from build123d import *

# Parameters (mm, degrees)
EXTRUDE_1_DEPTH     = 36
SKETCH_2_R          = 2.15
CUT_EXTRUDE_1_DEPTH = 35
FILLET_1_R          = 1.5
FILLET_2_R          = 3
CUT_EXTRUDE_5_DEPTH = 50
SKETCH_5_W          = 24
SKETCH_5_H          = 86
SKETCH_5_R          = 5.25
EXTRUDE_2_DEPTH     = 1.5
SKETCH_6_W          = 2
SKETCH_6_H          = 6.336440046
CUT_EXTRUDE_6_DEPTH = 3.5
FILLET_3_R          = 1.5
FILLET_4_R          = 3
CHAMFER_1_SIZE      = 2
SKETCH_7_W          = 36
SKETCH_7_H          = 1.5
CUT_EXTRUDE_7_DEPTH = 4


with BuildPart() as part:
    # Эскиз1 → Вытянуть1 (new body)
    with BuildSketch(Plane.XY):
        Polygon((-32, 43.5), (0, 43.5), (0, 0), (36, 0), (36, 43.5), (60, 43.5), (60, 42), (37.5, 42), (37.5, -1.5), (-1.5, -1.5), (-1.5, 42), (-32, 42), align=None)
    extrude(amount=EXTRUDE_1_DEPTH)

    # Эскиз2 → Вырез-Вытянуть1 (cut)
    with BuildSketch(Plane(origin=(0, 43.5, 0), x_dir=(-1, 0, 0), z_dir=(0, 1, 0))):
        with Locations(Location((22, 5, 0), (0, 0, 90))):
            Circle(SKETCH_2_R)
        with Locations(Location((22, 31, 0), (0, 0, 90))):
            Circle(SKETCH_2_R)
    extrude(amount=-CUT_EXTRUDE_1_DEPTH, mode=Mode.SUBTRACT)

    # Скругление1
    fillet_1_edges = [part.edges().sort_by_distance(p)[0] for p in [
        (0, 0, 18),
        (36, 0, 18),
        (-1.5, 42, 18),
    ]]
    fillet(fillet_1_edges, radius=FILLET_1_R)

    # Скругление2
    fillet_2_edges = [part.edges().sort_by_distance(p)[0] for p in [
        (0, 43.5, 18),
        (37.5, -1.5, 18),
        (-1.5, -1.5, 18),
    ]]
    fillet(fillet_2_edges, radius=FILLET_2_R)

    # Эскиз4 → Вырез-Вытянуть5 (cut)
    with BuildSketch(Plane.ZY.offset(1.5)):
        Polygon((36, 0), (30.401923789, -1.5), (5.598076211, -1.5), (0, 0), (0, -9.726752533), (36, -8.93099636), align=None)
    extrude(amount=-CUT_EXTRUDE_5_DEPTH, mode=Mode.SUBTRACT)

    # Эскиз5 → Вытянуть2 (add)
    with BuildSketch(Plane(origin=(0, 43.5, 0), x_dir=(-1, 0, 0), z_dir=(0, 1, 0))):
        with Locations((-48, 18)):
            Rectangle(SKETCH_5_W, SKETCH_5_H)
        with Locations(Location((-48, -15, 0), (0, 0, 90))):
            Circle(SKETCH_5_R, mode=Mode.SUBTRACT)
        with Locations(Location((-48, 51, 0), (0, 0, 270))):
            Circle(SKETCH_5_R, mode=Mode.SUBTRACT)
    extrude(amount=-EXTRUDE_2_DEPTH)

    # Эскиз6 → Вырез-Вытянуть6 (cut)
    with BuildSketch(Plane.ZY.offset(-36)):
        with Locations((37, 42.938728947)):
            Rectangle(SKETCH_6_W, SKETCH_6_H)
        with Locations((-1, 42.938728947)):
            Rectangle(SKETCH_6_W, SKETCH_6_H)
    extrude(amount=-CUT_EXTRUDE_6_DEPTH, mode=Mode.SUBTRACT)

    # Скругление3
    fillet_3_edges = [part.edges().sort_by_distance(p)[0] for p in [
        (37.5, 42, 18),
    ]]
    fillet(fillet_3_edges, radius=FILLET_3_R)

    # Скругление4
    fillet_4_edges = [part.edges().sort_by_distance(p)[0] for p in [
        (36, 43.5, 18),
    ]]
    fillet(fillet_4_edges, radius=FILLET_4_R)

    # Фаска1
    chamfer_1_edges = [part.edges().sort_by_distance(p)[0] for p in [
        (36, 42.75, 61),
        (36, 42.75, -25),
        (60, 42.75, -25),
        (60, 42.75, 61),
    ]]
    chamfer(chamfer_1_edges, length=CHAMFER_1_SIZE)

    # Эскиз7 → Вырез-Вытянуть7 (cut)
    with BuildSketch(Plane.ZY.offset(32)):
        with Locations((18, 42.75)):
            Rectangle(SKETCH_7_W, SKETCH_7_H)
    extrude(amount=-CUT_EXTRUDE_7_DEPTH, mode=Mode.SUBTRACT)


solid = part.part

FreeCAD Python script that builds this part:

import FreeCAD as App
import Part
import Sketcher
Q = App.Units.Quantity


def edges_at(feature, points):
    """Names of the edges that pass closest to the given points."""
    edges = feature.Shape.Edges
    near = lambda p: min(range(len(edges)), key=lambda i: edges[i].distToShape(Part.Vertex(*p))[0])
    return sorted({f"Edge{near(p) + 1}" for p in points})


def add_polygon(sketch, points):
    """Adds a closed chain of lines whose ends are joined by coincident constraints."""
    first, n = sketch.GeometryCount, len(points)
    for a, b in zip(points, points[1:] + points[:1]):
        sketch.addGeometry(Part.LineSegment(App.Vector(*a, 0), App.Vector(*b, 0)), False)
    for i in range(n):
        sketch.addConstraint(Sketcher.Constraint("Coincident", first + i, 2, first + (i + 1) % n, 1))

doc = App.newDocument("Part")
body = doc.addObject("PartDesign::Body", "Body")

# Sketch on XY plane
sketch1 = body.newObject("Sketcher::SketchObject", "Sketch")
sketch1.AttachmentSupport = (doc.getObject("XY_Plane"), [""])
sketch1.MapMode = "FlatFace"
add_polygon(sketch1, [(0, 43.5), (-32, 43.5), (-32, 42), (-1.5, 42), (-1.5, -1.5), (37.5, -1.5), (37.5, 42), (60, 42), (60, 43.5), (36, 43.5), (36, 0), (0, 0)])  # lines 0-11
sketch1.addConstraint(Sketcher.Constraint("Horizontal", 0))
sketch1.addConstraint(Sketcher.Constraint("Vertical", 1))
sketch1.addConstraint(Sketcher.Constraint("Horizontal", 2))
sketch1.addConstraint(Sketcher.Constraint("Vertical", 3))
sketch1.addConstraint(Sketcher.Constraint("Horizontal", 4))
sketch1.addConstraint(Sketcher.Constraint("Vertical", 5))
sketch1.addConstraint(Sketcher.Constraint("Horizontal", 6))
sketch1.addConstraint(Sketcher.Constraint("Vertical", 7))
sketch1.addConstraint(Sketcher.Constraint("Horizontal", 8))
sketch1.addConstraint(Sketcher.Constraint("Vertical", 9))
sketch1.addConstraint(Sketcher.Constraint("Horizontal", 10))
sketch1.addConstraint(Sketcher.Constraint("Vertical", 11))
sketch1.addConstraint(Sketcher.Constraint("Coincident", 10, 2, -1, 1))
sketch1.addConstraint(Sketcher.Constraint("Horizontal", 2, 2, 5, 2))
sketch1.addConstraint(Sketcher.Constraint("Horizontal", 0, 2, 7, 2))
sketch1.addConstraint(Sketcher.Constraint("Equal", 5, 9))
sketch1.addConstraint(Sketcher.Constraint("DistanceX", 0, 2, 0, 1, 32.0))
sketch1.addConstraint(Sketcher.Constraint("DistanceX", 4, 1, 4, 2, 39.0))
sketch1.addConstraint(Sketcher.Constraint("DistanceX", 8, 2, 8, 1, 24.0))
sketch1.addConstraint(Sketcher.Constraint("DistanceX", 10, 2, 10, 1, 36.0))
sketch1.addConstraint(Sketcher.Constraint("DistanceX", 2, 1, 2, 2, 30.5))
sketch1.addConstraint(Sketcher.Constraint("DistanceY", 1, 2, 1, 1, 1.5))
sketch1.addConstraint(Sketcher.Constraint("DistanceY", 3, 2, 3, 1, 43.5))
pad1 = body.newObject("PartDesign::Pad", "Pad")
pad1.Profile = sketch1
pad1.Length = 36

# Sketch on XZ plane
sketch2 = body.newObject("Sketcher::SketchObject", "Sketch001")
sketch2.AttachmentSupport = (doc.getObject("XZ_Plane"), [""])
sketch2.MapMode = "FlatFace"
sketch2.AttachmentOffset = App.Placement(App.Vector(0, 0, -43.5), App.Rotation())
sketch2.addGeometry(Part.Circle(App.Vector(-22, 5, 0), App.Vector(0, 0, 1), 2.1), False)
sketch2.addGeometry(Part.Circle(App.Vector(-22, 31, 0), App.Vector(0, 0, 1), 2.1), False)
sketch2.addConstraint(Sketcher.Constraint("Equal", 0, 1))
sketch2.addConstraint(Sketcher.Constraint("Vertical", 0, 3, 1, 3))
sketch2.addConstraint(Sketcher.Constraint("Diameter", 0, 4.3))
sketch2.addConstraint(Sketcher.Constraint("DistanceX", 0, 3, -1, 1, 22.0))
sketch2.addConstraint(Sketcher.Constraint("DistanceY", -1, 1, 0, 3, 5.0))
sketch2.addConstraint(Sketcher.Constraint("DistanceY", -1, 1, 1, 3, 31.0))
pocket1 = body.newObject("PartDesign::Pocket", "Pocket")
pocket1.Profile = sketch2
pocket1.Length = 35
pocket1.Reversed = True
doc.recompute()

fillet = body.newObject("PartDesign::Fillet", "Fillet")
fillet.Base = (pocket1, edges_at(pocket1, [(0, 0, 18), (36, 0, 18), (-1.5, 42, 18)]))
fillet.Radius = 1.5
doc.recompute()

fillet2 = body.newObject("PartDesign::Fillet", "Fillet001")
fillet2.Base = (fillet, edges_at(fillet, [(0, 43.5, 18), (37.5, -1.5, 18), (-1.5, -1.5, 18)]))
fillet2.Radius = 3

# Sketch on YZ plane
sketch3 = body.newObject("Sketcher::SketchObject", "Sketch002")
sketch3.AttachmentSupport = (doc.getObject("YZ_Plane"), [""])
sketch3.MapMode = "FlatFace"
sketch3.AttachmentOffset = App.Placement(App.Vector(0, 0, -1.5), App.Rotation())
add_polygon(sketch3, [(0, 36), (-2, 30), (-2, 6), (0, 0), (-10, 0), (-9, 36)])  # lines 0-5
sketch3.addConstraint(Sketcher.Constraint("Vertical", 1))
sketch3.addConstraint(Sketcher.Constraint("Horizontal", 3))
sketch3.addConstraint(Sketcher.Constraint("Horizontal", 5))
sketch3.addConstraint(Sketcher.Constraint("Coincident", 2, 2, -1, 1))
sketch3.addConstraint(Sketcher.Constraint("PointOnObject", 5, 2, -2))
sketch3.addConstraint(Sketcher.Constraint("Equal", 0, 2))
sketch3.addConstraint(Sketcher.Constraint("Angle", 0, Q("-105 deg")))
sketch3.addConstraint(Sketcher.Constraint("DistanceY", -1, 1, 4, 2, 36.0))
sketch3.addConstraint(Sketcher.Constraint("DistanceX", 0, 2, -1, 1, 1.5))
sketch3.addConstraint(Sketcher.Constraint("DistanceX", 3, 2, 3, 1, 9.726753))
sketch3.addConstraint(Sketcher.Constraint("DistanceX", 5, 1, 5, 2, 8.930996))
pocket2 = body.newObject("PartDesign::Pocket", "Pocket001")
pocket2.Profile = sketch3
pocket2.Length = 50
pocket2.Reversed = True

# Sketch on XZ plane
sketch4 = body.newObject("Sketcher::SketchObject", "Sketch003")
sketch4.AttachmentSupport = (doc.getObject("XZ_Plane"), [""])
sketch4.MapMode = "FlatFace"
sketch4.AttachmentOffset = App.Placement(App.Vector(0, 0, -43.5), App.Rotation())
add_polygon(sketch4, [(60, 61), (60, -25), (36, -25), (36, 61)])  # lines 0-3
sketch4.addGeometry(Part.Circle(App.Vector(48, -15, 0), App.Vector(0, 0, 1), 5), False)  # 4
sketch4.addGeometry(Part.Circle(App.Vector(48, 51, 0), App.Vector(0, 0, 1), 5), False)  # 5
sketch4.addConstraint(Sketcher.Constraint("Vertical", 0))
sketch4.addConstraint(Sketcher.Constraint("Horizontal", 1))
sketch4.addConstraint(Sketcher.Constraint("Vertical", 2))
sketch4.addConstraint(Sketcher.Constraint("Horizontal", 3))
sketch4.addConstraint(Sketcher.Constraint("Equal", 4, 5))
sketch4.addConstraint(Sketcher.Constraint("Vertical", 4, 3, 5, 3))
sketch4.addConstraint(Sketcher.Constraint("Diameter", 4, 10.5))
sketch4.addConstraint(Sketcher.Constraint("DistanceX", 1, 2, 1, 1, 24.0))
sketch4.addConstraint(Sketcher.Constraint("DistanceY", 0, 2, 0, 1, 86.0))
sketch4.addConstraint(Sketcher.Constraint("DistanceX", -1, 1, 4, 3, 48.0))
sketch4.addConstraint(Sketcher.Constraint("DistanceY", 4, 3, -1, 1, 15.0))
sketch4.addConstraint(Sketcher.Constraint("DistanceY", -1, 1, 5, 3, 51.0))
sketch4.addConstraint(Sketcher.Constraint("DistanceX", -1, 1, 0, 2, 60.0))
sketch4.addConstraint(Sketcher.Constraint("DistanceY", 0, 2, -1, 1, 25.0))
pad2 = body.newObject("PartDesign::Pad", "Pad001")
pad2.Profile = sketch4
pad2.Length = 1.5

# Sketch on YZ plane
sketch5 = body.newObject("Sketcher::SketchObject", "Sketch004")
sketch5.AttachmentSupport = (doc.getObject("YZ_Plane"), [""])
sketch5.MapMode = "FlatFace"
sketch5.AttachmentOffset = App.Placement(App.Vector(0, 0, 36), App.Rotation())
add_polygon(sketch5, [(46.1, 36), (39.8, 36), (39.8, 38), (46.1, 38)])  # lines 0-3
add_polygon(sketch5, [(46.1, -2), (39.8, -2), (39.8, 0), (46.1, 0)])  # lines 4-7
sketch5.addConstraint(Sketcher.Constraint("Horizontal", 0))
sketch5.addConstraint(Sketcher.Constraint("Vertical", 1))
sketch5.addConstraint(Sketcher.Constraint("Horizontal", 2))
sketch5.addConstraint(Sketcher.Constraint("Vertical", 3))
sketch5.addConstraint(Sketcher.Constraint("Horizontal", 4))
sketch5.addConstraint(Sketcher.Constraint("Vertical", 5))
sketch5.addConstraint(Sketcher.Constraint("Horizontal", 6))
sketch5.addConstraint(Sketcher.Constraint("Vertical", 7))
sketch5.addConstraint(Sketcher.Constraint("PointOnObject", 5, 2, -1))
sketch5.addConstraint(Sketcher.Constraint("Vertical", 1, 2, 4, 2))
sketch5.addConstraint(Sketcher.Constraint("Vertical", 3, 2, 6, 2))
sketch5.addConstraint(Sketcher.Constraint("Equal", 3, 5))
sketch5.addConstraint(Sketcher.Constraint("DistanceY", 1, 1, 1, 2, 2.0))
sketch5.addConstraint(Sketcher.Constraint("DistanceY", -1, 1, 0, 2, 36.0))
sketch5.addConstraint(Sketcher.Constraint("DistanceX", 0, 2, 0, 1, 6.33644))
sketch5.addConstraint(Sketcher.Constraint("DistanceX", -1, 1, 0, 2, 39.770509))
pocket3 = body.newObject("PartDesign::Pocket", "Pocket002")
pocket3.Profile = sketch5
pocket3.Length = 3.5
pocket3.Reversed = True
doc.recompute()

fillet3 = body.newObject("PartDesign::Fillet", "Fillet002")
fillet3.Base = (pocket3, edges_at(pocket3, [(37.5, 42, 18)]))
fillet3.Radius = 1.5
doc.recompute()

fillet4 = body.newObject("PartDesign::Fillet", "Fillet003")
fillet4.Base = (fillet3, edges_at(fillet3, [(36, 43.5, 18)]))
fillet4.Radius = 3
doc.recompute()

chamfer = body.newObject("PartDesign::Chamfer", "Chamfer")
chamfer.Base = (fillet4, edges_at(fillet4, [
    (36, 42.75, 61),
    (36, 42.75, -25),
    (60, 42.75, -25),
    (60, 42.75, 61),
]))
chamfer.Size = 2

# Sketch on YZ plane
sketch6 = body.newObject("Sketcher::SketchObject", "Sketch005")
sketch6.AttachmentSupport = (doc.getObject("YZ_Plane"), [""])
sketch6.MapMode = "FlatFace"
sketch6.AttachmentOffset = App.Placement(App.Vector(0, 0, -32), App.Rotation())
add_polygon(sketch6, [(43.5, 0), (42, 0), (42, 36), (43.5, 36)])  # lines 0-3
sketch6.addConstraint(Sketcher.Constraint("Horizontal", 0))
sketch6.addConstraint(Sketcher.Constraint("Vertical", 1))
sketch6.addConstraint(Sketcher.Constraint("Horizontal", 2))
sketch6.addConstraint(Sketcher.Constraint("Vertical", 3))
sketch6.addConstraint(Sketcher.Constraint("PointOnObject", 0, 2, -1))
sketch6.addConstraint(Sketcher.Constraint("DistanceY", 1, 1, 1, 2, 36.0))
sketch6.addConstraint(Sketcher.Constraint("DistanceX", 0, 2, 0, 1, 1.5))
sketch6.addConstraint(Sketcher.Constraint("DistanceX", -1, 1, 0, 2, 42.0))
pocket4 = body.newObject("PartDesign::Pocket", "Pocket003")
pocket4.Profile = sketch6
pocket4.Length = 4
pocket4.Reversed = True

doc.recompute()
